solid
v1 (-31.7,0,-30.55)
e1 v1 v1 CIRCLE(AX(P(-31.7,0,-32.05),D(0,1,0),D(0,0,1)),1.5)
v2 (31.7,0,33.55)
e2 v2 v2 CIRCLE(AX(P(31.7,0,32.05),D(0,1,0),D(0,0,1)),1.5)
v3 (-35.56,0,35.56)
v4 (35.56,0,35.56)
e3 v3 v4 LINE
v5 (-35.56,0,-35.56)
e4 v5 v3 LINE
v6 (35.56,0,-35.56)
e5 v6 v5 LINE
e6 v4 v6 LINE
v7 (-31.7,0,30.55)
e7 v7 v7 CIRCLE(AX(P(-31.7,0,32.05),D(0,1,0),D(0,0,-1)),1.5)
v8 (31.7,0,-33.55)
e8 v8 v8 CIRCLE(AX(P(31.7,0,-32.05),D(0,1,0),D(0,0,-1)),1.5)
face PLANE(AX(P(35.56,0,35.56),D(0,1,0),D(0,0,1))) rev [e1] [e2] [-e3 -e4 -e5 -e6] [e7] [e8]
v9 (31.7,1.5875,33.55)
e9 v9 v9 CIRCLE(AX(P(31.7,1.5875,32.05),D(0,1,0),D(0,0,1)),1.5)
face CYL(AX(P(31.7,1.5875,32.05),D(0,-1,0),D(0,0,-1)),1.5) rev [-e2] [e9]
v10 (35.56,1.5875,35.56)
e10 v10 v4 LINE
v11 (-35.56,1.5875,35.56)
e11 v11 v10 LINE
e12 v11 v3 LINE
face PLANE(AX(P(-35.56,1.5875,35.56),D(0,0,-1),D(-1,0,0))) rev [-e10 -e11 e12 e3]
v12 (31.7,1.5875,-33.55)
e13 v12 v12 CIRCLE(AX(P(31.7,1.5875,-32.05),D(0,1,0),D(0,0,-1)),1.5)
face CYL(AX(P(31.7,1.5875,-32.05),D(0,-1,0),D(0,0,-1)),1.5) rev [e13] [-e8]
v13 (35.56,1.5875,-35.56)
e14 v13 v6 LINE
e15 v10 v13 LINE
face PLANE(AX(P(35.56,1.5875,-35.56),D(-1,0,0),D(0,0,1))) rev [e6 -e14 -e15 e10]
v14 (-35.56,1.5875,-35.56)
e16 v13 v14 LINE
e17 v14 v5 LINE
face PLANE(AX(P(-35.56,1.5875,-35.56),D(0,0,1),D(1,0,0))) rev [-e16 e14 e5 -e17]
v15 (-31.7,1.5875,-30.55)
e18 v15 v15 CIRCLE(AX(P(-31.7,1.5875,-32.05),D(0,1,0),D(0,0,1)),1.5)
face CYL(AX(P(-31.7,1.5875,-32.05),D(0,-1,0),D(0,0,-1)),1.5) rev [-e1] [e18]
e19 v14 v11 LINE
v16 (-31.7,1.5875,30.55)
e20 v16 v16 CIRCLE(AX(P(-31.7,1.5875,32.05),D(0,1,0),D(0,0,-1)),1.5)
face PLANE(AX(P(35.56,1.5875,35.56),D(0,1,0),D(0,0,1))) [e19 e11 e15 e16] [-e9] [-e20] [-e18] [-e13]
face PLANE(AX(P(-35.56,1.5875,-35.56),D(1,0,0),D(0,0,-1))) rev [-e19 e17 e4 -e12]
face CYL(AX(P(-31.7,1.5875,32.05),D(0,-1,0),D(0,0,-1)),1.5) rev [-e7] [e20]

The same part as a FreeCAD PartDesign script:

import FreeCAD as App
import Part
import Sketcher
from FreeCAD import Vector
Q = App.Units.Quantity

doc = App.newDocument("Part")
body = doc.addObject("PartDesign::Body", "Body")

# Sketch on XZ plane
sketch1 = body.newObject("Sketcher::SketchObject", "Sketch")
sketch1.AttachmentSupport = (doc.getObject("XZ_Plane"), [""])
sketch1.MapMode = "FlatFace"
sketch1.addGeometry([
    Part.LineSegment(Vector(-35.6, -35.6, 0), Vector(-35.6, 35.6, 0)),  # 0
    Part.LineSegment(Vector(-35.6, 35.6, 0), Vector(35.6, 35.6, 0)),  # 1
    Part.LineSegment(Vector(35.6, 35.6, 0), Vector(35.6, -35.6, 0)),  # 2
    Part.LineSegment(Vector(35.6, -35.6, 0), Vector(-35.6, -35.6, 0)),  # 3
    Part.Circle(Vector(-31.7, 32, 0), Vector(0, 0, 1), 1.5),  # 4
    Part.Circle(Vector(31.7, 32, 0), Vector(0, 0, 1), 1.5),  # 5
    Part.Circle(Vector(-31.7, -32, 0), Vector(0, 0, 1), 1.5),  # 6
    Part.Circle(Vector(31.7, -32, 0), Vector(0, 0, 1), 1.5),  # 7
], False)
sketch1.addConstraint([
    Sketcher.Constraint("Coincident", 0, 2, 1, 1),
    Sketcher.Constraint("Coincident", 1, 2, 2, 1),
    Sketcher.Constraint("Coincident", 2, 2, 3, 1),
    Sketcher.Constraint("Coincident", 3, 2, 0, 1),
    Sketcher.Constraint("Vertical", 0),
    Sketcher.Constraint("Horizontal", 1),
    Sketcher.Constraint("Vertical", 2),
    Sketcher.Constraint("Horizontal", 3),
    Sketcher.Constraint("Equal", 4, 5),
    Sketcher.Constraint("Equal", 5, 6),
    Sketcher.Constraint("Equal", 6, 7),
    Sketcher.Constraint("Symmetric", 5, 3, 6, 3, -1, 1),
    Sketcher.Constraint("Symmetric", 4, 3, 7, 3, -1, 1),
    Sketcher.Constraint("Symmetric", 0, 2, 2, 2, -1, 1),
    Sketcher.Constraint("Symmetric", 4, 3, 5, 3, -2),
    Sketcher.Constraint("Equal", 3, 0),
    Sketcher.Constraint("DistanceX", 1, 1, 1, 2, Q("2.8 in")),
    Sketcher.Constraint("Diameter", 4, 3.0),
    Sketcher.Constraint("DistanceX", 4, 3, -1, 1, 31.7),
    Sketcher.Constraint("DistanceY", -1, 1, 4, 3, 32.05),
])
pad1 = body.newObject("PartDesign::Pad", "Pad")
pad1.Profile = sketch1
pad1.Length = Q("0.0625 in")
pad1.Reversed = True

doc.recompute()
